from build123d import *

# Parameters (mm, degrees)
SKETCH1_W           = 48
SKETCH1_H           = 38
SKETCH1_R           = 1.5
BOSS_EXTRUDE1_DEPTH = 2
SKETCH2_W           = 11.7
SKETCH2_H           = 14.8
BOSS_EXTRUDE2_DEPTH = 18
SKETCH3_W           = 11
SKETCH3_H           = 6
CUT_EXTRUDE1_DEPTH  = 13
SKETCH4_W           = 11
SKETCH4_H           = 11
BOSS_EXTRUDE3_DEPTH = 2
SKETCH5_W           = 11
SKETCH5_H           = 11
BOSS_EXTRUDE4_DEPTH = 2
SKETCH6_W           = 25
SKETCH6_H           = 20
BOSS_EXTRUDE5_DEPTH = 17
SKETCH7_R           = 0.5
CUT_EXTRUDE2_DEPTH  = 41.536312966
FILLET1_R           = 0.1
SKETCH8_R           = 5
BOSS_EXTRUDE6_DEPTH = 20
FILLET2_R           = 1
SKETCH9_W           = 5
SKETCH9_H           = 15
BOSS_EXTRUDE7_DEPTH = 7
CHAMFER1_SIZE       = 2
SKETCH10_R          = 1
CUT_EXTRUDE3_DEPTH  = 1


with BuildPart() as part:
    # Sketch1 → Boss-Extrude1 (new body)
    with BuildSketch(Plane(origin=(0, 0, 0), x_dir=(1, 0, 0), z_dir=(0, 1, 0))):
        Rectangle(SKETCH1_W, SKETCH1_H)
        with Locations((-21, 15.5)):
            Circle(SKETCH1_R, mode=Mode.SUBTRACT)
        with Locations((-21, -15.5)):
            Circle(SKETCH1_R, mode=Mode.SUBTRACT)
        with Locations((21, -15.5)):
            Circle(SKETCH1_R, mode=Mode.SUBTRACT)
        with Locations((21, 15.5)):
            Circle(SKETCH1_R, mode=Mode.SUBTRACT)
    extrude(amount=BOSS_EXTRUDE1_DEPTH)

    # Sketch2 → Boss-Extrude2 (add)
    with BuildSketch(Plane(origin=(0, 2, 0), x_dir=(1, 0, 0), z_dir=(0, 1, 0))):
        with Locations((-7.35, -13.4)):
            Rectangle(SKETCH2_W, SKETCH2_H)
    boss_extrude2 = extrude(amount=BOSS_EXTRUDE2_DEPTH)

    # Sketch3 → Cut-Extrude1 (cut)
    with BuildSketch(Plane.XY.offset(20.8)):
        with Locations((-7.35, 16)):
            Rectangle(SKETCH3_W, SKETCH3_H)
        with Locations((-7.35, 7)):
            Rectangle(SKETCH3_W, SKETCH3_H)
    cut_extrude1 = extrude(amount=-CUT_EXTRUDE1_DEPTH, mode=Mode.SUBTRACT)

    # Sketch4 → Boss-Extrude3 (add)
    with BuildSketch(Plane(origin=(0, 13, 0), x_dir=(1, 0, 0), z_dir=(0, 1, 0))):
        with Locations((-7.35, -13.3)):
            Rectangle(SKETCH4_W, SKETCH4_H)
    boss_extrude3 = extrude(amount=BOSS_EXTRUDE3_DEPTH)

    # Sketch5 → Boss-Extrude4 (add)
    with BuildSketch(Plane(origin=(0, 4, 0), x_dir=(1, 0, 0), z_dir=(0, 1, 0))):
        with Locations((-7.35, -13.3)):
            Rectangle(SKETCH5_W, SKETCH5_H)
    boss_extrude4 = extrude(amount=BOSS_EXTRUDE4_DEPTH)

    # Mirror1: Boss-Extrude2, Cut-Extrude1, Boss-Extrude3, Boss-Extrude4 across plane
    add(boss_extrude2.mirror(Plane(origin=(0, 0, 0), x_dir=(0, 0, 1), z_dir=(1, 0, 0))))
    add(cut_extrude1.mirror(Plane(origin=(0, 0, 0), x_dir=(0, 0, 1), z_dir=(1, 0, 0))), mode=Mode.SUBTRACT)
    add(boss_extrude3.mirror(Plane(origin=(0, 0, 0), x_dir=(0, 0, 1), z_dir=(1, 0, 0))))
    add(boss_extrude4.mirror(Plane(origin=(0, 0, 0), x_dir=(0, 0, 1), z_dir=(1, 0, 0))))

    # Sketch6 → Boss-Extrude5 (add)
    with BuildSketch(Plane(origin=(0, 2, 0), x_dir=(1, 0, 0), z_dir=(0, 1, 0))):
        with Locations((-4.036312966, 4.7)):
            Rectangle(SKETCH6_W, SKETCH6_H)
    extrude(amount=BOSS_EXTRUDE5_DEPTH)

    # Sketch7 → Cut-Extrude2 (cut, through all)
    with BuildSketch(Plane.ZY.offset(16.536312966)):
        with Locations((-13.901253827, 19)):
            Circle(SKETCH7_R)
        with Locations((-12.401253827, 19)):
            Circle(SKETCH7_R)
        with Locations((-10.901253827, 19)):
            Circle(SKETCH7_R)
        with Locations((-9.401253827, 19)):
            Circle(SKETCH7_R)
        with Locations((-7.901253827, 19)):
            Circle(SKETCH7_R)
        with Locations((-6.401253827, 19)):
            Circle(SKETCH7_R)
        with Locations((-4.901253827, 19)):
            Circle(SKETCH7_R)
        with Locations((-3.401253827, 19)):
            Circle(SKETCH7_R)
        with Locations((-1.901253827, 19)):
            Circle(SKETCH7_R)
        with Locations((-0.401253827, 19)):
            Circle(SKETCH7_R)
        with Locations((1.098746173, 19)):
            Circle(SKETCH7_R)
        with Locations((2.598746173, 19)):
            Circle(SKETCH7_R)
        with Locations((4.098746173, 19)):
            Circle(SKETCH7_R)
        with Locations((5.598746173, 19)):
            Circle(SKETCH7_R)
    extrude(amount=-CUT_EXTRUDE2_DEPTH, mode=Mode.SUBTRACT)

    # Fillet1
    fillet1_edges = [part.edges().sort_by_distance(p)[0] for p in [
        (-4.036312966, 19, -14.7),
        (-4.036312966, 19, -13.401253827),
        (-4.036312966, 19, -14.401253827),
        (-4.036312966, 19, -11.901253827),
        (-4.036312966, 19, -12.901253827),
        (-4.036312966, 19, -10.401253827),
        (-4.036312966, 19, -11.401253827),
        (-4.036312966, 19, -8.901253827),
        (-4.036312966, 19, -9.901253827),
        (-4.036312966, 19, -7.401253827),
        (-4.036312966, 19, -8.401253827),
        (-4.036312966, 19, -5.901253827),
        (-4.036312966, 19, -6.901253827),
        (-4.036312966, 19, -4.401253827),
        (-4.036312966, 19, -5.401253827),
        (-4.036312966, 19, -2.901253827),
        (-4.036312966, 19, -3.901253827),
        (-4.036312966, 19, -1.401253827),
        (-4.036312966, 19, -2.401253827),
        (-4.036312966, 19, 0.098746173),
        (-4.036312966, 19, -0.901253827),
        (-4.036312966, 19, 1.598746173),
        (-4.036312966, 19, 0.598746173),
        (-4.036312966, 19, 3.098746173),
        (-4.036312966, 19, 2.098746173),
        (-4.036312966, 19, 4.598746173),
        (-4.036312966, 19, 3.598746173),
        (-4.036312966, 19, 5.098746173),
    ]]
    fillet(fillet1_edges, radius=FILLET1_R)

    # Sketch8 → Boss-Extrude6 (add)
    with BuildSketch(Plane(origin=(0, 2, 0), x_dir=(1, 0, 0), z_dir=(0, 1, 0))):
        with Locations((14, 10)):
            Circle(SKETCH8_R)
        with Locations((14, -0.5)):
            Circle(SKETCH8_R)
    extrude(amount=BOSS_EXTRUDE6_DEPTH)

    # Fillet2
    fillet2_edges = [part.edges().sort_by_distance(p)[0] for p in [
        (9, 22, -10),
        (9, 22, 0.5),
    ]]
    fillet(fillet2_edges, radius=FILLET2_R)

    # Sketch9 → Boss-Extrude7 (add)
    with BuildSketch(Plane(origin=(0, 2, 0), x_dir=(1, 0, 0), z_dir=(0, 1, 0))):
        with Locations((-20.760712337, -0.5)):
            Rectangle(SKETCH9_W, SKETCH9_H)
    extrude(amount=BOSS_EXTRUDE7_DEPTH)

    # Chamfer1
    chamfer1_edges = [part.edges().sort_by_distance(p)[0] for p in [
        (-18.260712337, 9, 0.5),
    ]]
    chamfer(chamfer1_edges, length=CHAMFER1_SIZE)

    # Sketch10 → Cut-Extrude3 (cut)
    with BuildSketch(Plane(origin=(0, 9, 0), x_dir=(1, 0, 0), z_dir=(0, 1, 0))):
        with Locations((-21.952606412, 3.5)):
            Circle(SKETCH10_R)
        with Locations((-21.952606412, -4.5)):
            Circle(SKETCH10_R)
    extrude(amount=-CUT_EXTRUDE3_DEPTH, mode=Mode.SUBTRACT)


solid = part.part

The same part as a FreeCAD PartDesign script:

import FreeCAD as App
import Part
import Sketcher
Q = App.Units.Quantity


def edges_at(feature, points):
    """Names of the edges that pass closest to the given points."""
    edges = feature.Shape.Edges
    near = lambda p: min(range(len(edges)), key=lambda i: edges[i].distToShape(Part.Vertex(*p))[0])
    return sorted({f"Edge{near(p) + 1}" for p in points})

doc = App.newDocument("Part")
params = doc.addObject("Spreadsheet::Sheet", "Params")
for row, (alias, value) in enumerate([
    ("sketch1_diameter", "3 mm"),
    ("sketch1_width", "48 mm"),
    ("sketch1_height", "38 mm"),
    ("pad1_length", "2 mm"),
    ("sketch2_width", "11.7 mm"),
    ("sketch2_height", "14.8 mm"),
    ("pad2_length", "18 mm"),
    ("sketch3_width", "11 mm"),
    ("sketch3_height", "6 mm"),
    ("pocket1_length", "13 mm"),
    ("sketch4_width", "11 mm"),
    ("pad3_length", "2 mm"),
    ("sketch5_width", "11 mm"),
    ("pad4_length", "2 mm"),
    ("sketch6_width", "25 mm"),
    ("sketch6_height", "20 mm"),
    ("pad5_length", "17 mm"),
    ("sketch7_diameter", "1 mm"),
    ("fillet_radius", "0.1 mm"),
    ("sketch8_diameter", "10 mm"),
    ("pad6_length", "20 mm"),
    ("fillet2_radius", "1 mm"),
    ("sketch9_width", "5 mm"),
    ("sketch9_height", "15 mm"),
    ("pad7_length", "7 mm"),
    ("chamfer_size", "2 mm"),
    ("sketch10_diameter", "2 mm"),
    ("pocket3_length", "1 mm"),
], start=1):
    params.set(f"A{row}", alias)
    params.set(f"B{row}", "=" + value)
    params.setAlias(f"B{row}", alias)

body = doc.addObject("PartDesign::Body", "Body")

sketch1 = body.newObject("Sketcher::SketchObject", "Sketch")
sketch1.AttachmentSupport = (doc.getObject("XZ_Plane"), [""])
sketch1.MapMode = "FlatFace"
sketch1.addGeometry([
    Part.LineSegment(App.Vector(-24, -19, 0), App.Vector(-24, 19, 0)),
    Part.LineSegment(App.Vector(-24, 19, 0), App.Vector(24, 19, 0)),
    Part.LineSegment(App.Vector(24, 19, 0), App.Vector(24, -19, 0)),
    Part.LineSegment(App.Vector(24, -19, 0), App.Vector(-24, -19, 0)),
    Part.Circle(App.Vector(-21, 15.5, 0), App.Vector(0, 0, 1), 1.5),
    Part.Circle(App.Vector(21, 15.5, 0), App.Vector(0, 0, 1), 1.5),
    Part.Circle(App.Vector(-21, -15.5, 0), App.Vector(0, 0, 1), 1.5),
    Part.Circle(App.Vector(21, -15.5, 0), App.Vector(0, 0, 1), 1.5),
], False)
sketch1.addConstraint([
    Sketcher.Constraint("Coincident", 0, 2, 1, 1),
    Sketcher.Constraint("Coincident", 1, 2, 2, 1),
    Sketcher.Constraint("Coincident", 2, 2, 3, 1),
    Sketcher.Constraint("Coincident", 3, 2, 0, 1),
    Sketcher.Constraint("Vertical", 0),
    Sketcher.Constraint("Horizontal", 1),
    Sketcher.Constraint("Vertical", 2),
    Sketcher.Constraint("Horizontal", 3),
    Sketcher.Constraint("Equal", 4, 5),
    Sketcher.Constraint("Equal", 5, 6),
    Sketcher.Constraint("Equal", 6, 7),
    Sketcher.Constraint("Symmetric", 5, 3, 6, 3, -1, 1),
    Sketcher.Constraint("Symmetric", 4, 3, 7, 3, -1, 1),
    Sketcher.Constraint("Symmetric", 0, 2, 2, 2, -1, 1),
    Sketcher.Constraint("Symmetric", 4, 3, 5, 3, -2),
    Sketcher.Constraint("Diameter", 4, Q("3 mm")),
    Sketcher.Constraint("DistanceX", 1, 1, 1, 2, Q("48 mm")),
    Sketcher.Constraint("DistanceY", 0, 1, 0, 2, Q("38 mm")),
    Sketcher.Constraint("DistanceX", 4, 3, -1, 1, Q("21 mm")),
    Sketcher.Constraint("DistanceY", 6, 3, 4, 3, Q("31 mm")),
])
sketch1.setExpression("Constraints[15]", "Params.sketch1_diameter")
sketch1.setExpression("Constraints[16]", "Params.sketch1_width")
sketch1.setExpression("Constraints[17]", "Params.sketch1_height")
pad1 = body.newObject("PartDesign::Pad", "Pad")
pad1.Profile = sketch1
pad1.setExpression("Length", "Params.pad1_length")
pad1.Reversed = True

sketch2 = body.newObject("Sketcher::SketchObject", "Sketch001")
sketch2.AttachmentSupport = (doc.getObject("XZ_Plane"), [""])
sketch2.MapMode = "FlatFace"
sketch2.AttachmentOffset = App.Placement(App.Vector(0, 0, -2), App.Rotation())
sketch2.addGeometry([
    Part.LineSegment(App.Vector(-13, 6, 0), App.Vector(-13, 21, 0)),
    Part.LineSegment(App.Vector(-13, 21, 0), App.Vector(-2, 21, 0)),
    Part.LineSegment(App.Vector(-2, 21, 0), App.Vector(-2, 6, 0)),
    Part.LineSegment(App.Vector(-2, 6, 0), App.Vector(-13, 6, 0)),
], False)
sketch2.addConstraint([
    Sketcher.Constraint("Coincident", 0, 2, 1, 1),
    Sketcher.Constraint("Coincident", 1, 2, 2, 1),
    Sketcher.Constraint("Coincident", 2, 2, 3, 1),
    Sketcher.Constraint("Coincident", 3, 2, 0, 1),
    Sketcher.Constraint("Vertical", 0),
    Sketcher.Constraint("Horizontal", 1),
    Sketcher.Constraint("Vertical", 2),
    Sketcher.Constraint("Horizontal", 3),
    Sketcher.Constraint("DistanceX", 1, 1, 1, 2, Q("11.7 mm")),
    Sketcher.Constraint("DistanceY", 0, 1, 0, 2, Q("14.8 mm")),
    Sketcher.Constraint("DistanceY", -1, 1, 2, 2, Q("6 mm")),
    Sketcher.Constraint("DistanceX", 0, 2, -1, 1, Q("13.2 mm")),
])
sketch2.setExpression("Constraints[8]", "Params.sketch2_width")
sketch2.setExpression("Constraints[9]", "Params.sketch2_height")
pad2 = body.newObject("PartDesign::Pad", "Pad001")
pad2.Profile = sketch2
pad2.setExpression("Length", "Params.pad2_length")
pad2.Reversed = True

sketch3 = body.newObject("Sketcher::SketchObject", "Sketch002")
sketch3.AttachmentSupport = (doc.getObject("XY_Plane"), [""])
sketch3.MapMode = "FlatFace"
sketch3.AttachmentOffset = App.Placement(App.Vector(0, 0, 20.8), App.Rotation())
sketch3.addGeometry([
    Part.LineSegment(App.Vector(-13, 19, 0), App.Vector(-13, 13, 0)),
    Part.LineSegment(App.Vector(-13, 13, 0), App.Vector(-2, 13, 0)),
    Part.LineSegment(App.Vector(-2, 13, 0), App.Vector(-2, 19, 0)),
    Part.LineSegment(App.Vector(-2, 19, 0), App.Vector(-13, 19, 0)),
    Part.LineSegment(App.Vector(-13, 10, 0), App.Vector(-13, 4, 0)),
    Part.LineSegment(App.Vector(-13, 4, 0), App.Vector(-2, 4, 0)),
    Part.LineSegment(App.Vector(-2, 4, 0), App.Vector(-2, 10, 0)),
    Part.LineSegment(App.Vector(-2, 10, 0), App.Vector(-13, 10, 0)),
], False)
sketch3.addConstraint([
    Sketcher.Constraint("Coincident", 0, 2, 1, 1),
    Sketcher.Constraint("Coincident", 1, 2, 2, 1),
    Sketcher.Constraint("Coincident", 2, 2, 3, 1),
    Sketcher.Constraint("Coincident", 3, 2, 0, 1),
    Sketcher.Constraint("Coincident", 4, 2, 5, 1),
    Sketcher.Constraint("Coincident", 5, 2, 6, 1),
    Sketcher.Constraint("Coincident", 6, 2, 7, 1),
    Sketcher.Constraint("Coincident", 7, 2, 4, 1),
    Sketcher.Constraint("Vertical", 0),
    Sketcher.Constraint("Horizontal", 1),
    Sketcher.Constraint("Vertical", 2),
    Sketcher.Constraint("Horizontal", 3),
    Sketcher.Constraint("Vertical", 4),
    Sketcher.Constraint("Horizontal", 5),
    Sketcher.Constraint("Vertical", 6),
    Sketcher.Constraint("Horizontal", 7),
    Sketcher.Constraint("Vertical", 3, 2, 4, 2),
    Sketcher.Constraint("Vertical", 2, 2, 5, 2),
    Sketcher.Constraint("Equal", 2, 4),
    Sketcher.Constraint("DistanceX", 1, 1, 1, 2, Q("11 mm")),
    Sketcher.Constraint("DistanceY", 0, 2, 0, 1, Q("6 mm")),
    Sketcher.Constraint("DistanceY", -1, 1, 0, 2, Q("13 mm")),
    Sketcher.Constraint("DistanceY", -1, 1, 4, 2, Q("4 mm")),
    Sketcher.Constraint("DistanceX", 0, 2, -1, 1, Q("12.85 mm")),
])
sketch3.setExpression("Constraints[19]", "Params.sketch3_width")
sketch3.setExpression("Constraints[20]", "Params.sketch3_height")
pocket1 = body.newObject("PartDesign::Pocket", "Pocket")
pocket1.Profile = sketch3
pocket1.setExpression("Length", "Params.pocket1_length")

sketch4 = body.newObject("Sketcher::SketchObject", "Sketch003")
sketch4.AttachmentSupport = (doc.getObject("XZ_Plane"), [""])
sketch4.MapMode = "FlatFace"
sketch4.AttachmentOffset = App.Placement(App.Vector(0, 0, -13), App.Rotation())
sketch4.addGeometry([
    Part.LineSegment(App.Vector(-13, 8, 0), App.Vector(-13, 19, 0)),
    Part.LineSegment(App.Vector(-13, 19, 0), App.Vector(-2, 19, 0)),
    Part.LineSegment(App.Vector(-2, 19, 0), App.Vector(-2, 8, 0)),
    Part.LineSegment(App.Vector(-2, 8, 0), App.Vector(-13, 8, 0)),
], False)
sketch4.addConstraint([
    Sketcher.Constraint("Coincident", 0, 2, 1, 1),
    Sketcher.Constraint("Coincident", 1, 2, 2, 1),
    Sketcher.Constraint("Coincident", 2, 2, 3, 1),
    Sketcher.Constraint("Coincident", 3, 2, 0, 1),
    Sketcher.Constraint("Vertical", 0),
    Sketcher.Constraint("Horizontal", 1),
    Sketcher.Constraint("Vertical", 2),
    Sketcher.Constraint("Horizontal", 3),
    Sketcher.Constraint("Equal", 3, 0),
    Sketcher.Constraint("DistanceX", 1, 1, 1, 2, Q("11 mm")),
    Sketcher.Constraint("DistanceY", -1, 1, 0, 2, Q("18.8 mm")),
    Sketcher.Constraint("DistanceX", 0, 2, -1, 1, Q("12.85 mm")),
])
sketch4.setExpression("Constraints[9]", "Params.sketch4_width")
pad3 = body.newObject("PartDesign::Pad", "Pad002")
pad3.Profile = sketch4
pad3.setExpression("Length", "Params.pad3_length")
pad3.Reversed = True

sketch5 = body.newObject("Sketcher::SketchObject", "Sketch004")
sketch5.AttachmentSupport = (doc.getObject("XZ_Plane"), [""])
sketch5.MapMode = "FlatFace"
sketch5.AttachmentOffset = App.Placement(App.Vector(0, 0, -4), App.Rotation())
sketch5.addGeometry([
    Part.LineSegment(App.Vector(-13, 8, 0), App.Vector(-13, 19, 0)),
    Part.LineSegment(App.Vector(-13, 19, 0), App.Vector(-2, 19, 0)),
    Part.LineSegment(App.Vector(-2, 19, 0), App.Vector(-2, 8, 0)),
    Part.LineSegment(App.Vector(-2, 8, 0), App.Vector(-13, 8, 0)),
], False)
sketch5.addConstraint([
    Sketcher.Constraint("Coincident", 0, 2, 1, 1),
    Sketcher.Constraint("Coincident", 1, 2, 2, 1),
    Sketcher.Constraint("Coincident", 2, 2, 3, 1),
    Sketcher.Constraint("Coincident", 3, 2, 0, 1),
    Sketcher.Constraint("Vertical", 0),
    Sketcher.Constraint("Horizontal", 1),
    Sketcher.Constraint("Vertical", 2),
    Sketcher.Constraint("Horizontal", 3),
    Sketcher.Constraint("Equal", 3, 0),
    Sketcher.Constraint("DistanceX", 1, 1, 1, 2, Q("11 mm")),
    Sketcher.Constraint("DistanceY", -1, 1, 0, 2, Q("18.8 mm")),
    Sketcher.Constraint("DistanceX", 0, 2, -1, 1, Q("12.85 mm")),
])
sketch5.setExpression("Constraints[9]", "Params.sketch5_width")
pad4 = body.newObject("PartDesign::Pad", "Pad003")
pad4.Profile = sketch5
pad4.setExpression("Length", "Params.pad4_length")
pad4.Reversed = True
doc.recompute()

mirrored = body.newObject("PartDesign::Mirrored", "Mirrored")
mirrored.Originals = [pad2, pocket1, pad3, pad4]
mirrored.MirrorPlane = (doc.getObject("YZ_Plane"), [""])
body.Tip = mirrored

sketch6 = body.newObject("Sketcher::SketchObject", "Sketch005")
sketch6.AttachmentSupport = (doc.getObject("XZ_Plane"), [""])
sketch6.MapMode = "FlatFace"
sketch6.AttachmentOffset = App.Placement(App.Vector(0, 0, -2), App.Rotation())
sketch6.addGeometry([
    Part.LineSegment(App.Vector(-17, -15, 0), App.Vector(-17, 5, 0)),
    Part.LineSegment(App.Vector(-17, 5, 0), App.Vector(8, 5, 0)),
    Part.LineSegment(App.Vector(8, 5, 0), App.Vector(8, -15, 0)),
    Part.LineSegment(App.Vector(8, -15, 0), App.Vector(-17, -15, 0)),
], False)
sketch6.addConstraint([
    Sketcher.Constraint("Coincident", 0, 2, 1, 1),
    Sketcher.Constraint("Coincident", 1, 2, 2, 1),
    Sketcher.Constraint("Coincident", 2, 2, 3, 1),
    Sketcher.Constraint("Coincident", 3, 2, 0, 1),
    Sketcher.Constraint("Vertical", 0),
    Sketcher.Constraint("Horizontal", 1),
    Sketcher.Constraint("Vertical", 2),
    Sketcher.Constraint("Horizontal", 3),
    Sketcher.Constraint("DistanceX", 1, 1, 1, 2, Q("25 mm")),
    Sketcher.Constraint("DistanceY", 0, 1, 0, 2, Q("20 mm")),
    Sketcher.Constraint("DistanceY", -1, 1, 0, 2, Q("5.3 mm")),
    Sketcher.Constraint("DistanceX", 0, 2, -1, 1, Q("16.536313 mm")),
])
sketch6.setExpression("Constraints[8]", "Params.sketch6_width")
sketch6.setExpression("Constraints[9]", "Params.sketch6_height")
pad5 = body.newObject("PartDesign::Pad", "Pad004")
pad5.Profile = sketch6
pad5.setExpression("Length", "Params.pad5_length")
pad5.Reversed = True

sketch7 = body.newObject("Sketcher::SketchObject", "Sketch006")
sketch7.AttachmentSupport = (doc.getObject("YZ_Plane"), [""])
sketch7.MapMode = "FlatFace"
sketch7.AttachmentOffset = App.Placement(App.Vector(0, 0, -16.536313), App.Rotation())
sketch7.addGeometry([
    Part.Circle(App.Vector(19, -13.9, 0), App.Vector(0, 0, 1), 0.5),
    Part.Circle(App.Vector(19, -12.4, 0), App.Vector(0, 0, 1), 0.5),
    Part.Circle(App.Vector(19, -10.9, 0), App.Vector(0, 0, 1), 0.5),
    Part.Circle(App.Vector(19, -9.4, 0), App.Vector(0, 0, 1), 0.5),
    Part.Circle(App.Vector(19, -7.9, 0), App.Vector(0, 0, 1), 0.5),
    Part.Circle(App.Vector(19, -6.4, 0), App.Vector(0, 0, 1), 0.5),
    Part.Circle(App.Vector(19, -4.9, 0), App.Vector(0, 0, 1), 0.5),
    Part.Circle(App.Vector(19, -3.4, 0), App.Vector(0, 0, 1), 0.5),
    Part.Circle(App.Vector(19, -1.9, 0), App.Vector(0, 0, 1), 0.5),
    Part.Circle(App.Vector(19, -0.4, 0), App.Vector(0, 0, 1), 0.5),
    Part.Circle(App.Vector(19, 1.1, 0), App.Vector(0, 0, 1), 0.5),
    Part.Circle(App.Vector(19, 2.6, 0), App.Vector(0, 0, 1), 0.5),
    Part.Circle(App.Vector(19, 4.1, 0), App.Vector(0, 0, 1), 0.5),
    Part.Circle(App.Vector(19, 5.6, 0), App.Vector(0, 0, 1), 0.5),
], False)
sketch7.addConstraint([
    Sketcher.Constraint("Equal", 0, 1),
    Sketcher.Constraint("Equal", 1, 2),
    Sketcher.Constraint("Equal", 2, 3),
    Sketcher.Constraint("Equal", 3, 4),
    Sketcher.Constraint("Equal", 4, 5),
    Sketcher.Constraint("Equal", 5, 6),
    Sketcher.Constraint("Equal", 6, 7),
    Sketcher.Constraint("Equal", 7, 8),
    Sketcher.Constraint("Equal", 8, 9),
    Sketcher.Constraint("Equal", 9, 10),
    Sketcher.Constraint("Equal", 10, 11),
    Sketcher.Constraint("Equal", 11, 12),
    Sketcher.Constraint("Equal", 12, 13),
    Sketcher.Constraint("Vertical", 0, 3, 1, 3),
    Sketcher.Constraint("Vertical", 1, 3, 2, 3),
    Sketcher.Constraint("Vertical", 2, 3, 3, 3),
    Sketcher.Constraint("Vertical", 3, 3, 4, 3),
    Sketcher.Constraint("Vertical", 4, 3, 5, 3),
    Sketcher.Constraint("Vertical", 5, 3, 6, 3),
    Sketcher.Constraint("Vertical", 6, 3, 7, 3),
    Sketcher.Constraint("Vertical", 7, 3, 8, 3),
    Sketcher.Constraint("Vertical", 8, 3, 9, 3),
    Sketcher.Constraint("Vertical", 9, 3, 10, 3),
    Sketcher.Constraint("Vertical", 10, 3, 11, 3),
    Sketcher.Constraint("Vertical", 11, 3, 12, 3),
    Sketcher.Constraint("Vertical", 12, 3, 13, 3),
    Sketcher.Constraint("Diameter", 0, Q("1 mm")),
    Sketcher.Constraint("DistanceX", -1, 1, 0, 3, Q("19 mm")),
    Sketcher.Constraint("DistanceY", 0, 3, 2, 3, Q("3 mm")),
    Sketcher.Constraint("DistanceY", 1, 3, 3, 3, Q("3 mm")),
    Sketcher.Constraint("DistanceY", 2, 3, 4, 3, Q("3 mm")),
    Sketcher.Constraint("DistanceY", 3, 3, 5, 3, Q("3 mm")),
    Sketcher.Constraint("DistanceY", 4, 3, 6, 3, Q("3 mm")),
    Sketcher.Constraint("DistanceY", 5, 3, 7, 3, Q("3 mm")),
    Sketcher.Constraint("DistanceY", 6, 3, 8, 3, Q("3 mm")),
    Sketcher.Constraint("DistanceY", 7, 3, 9, 3, Q("3 mm")),
    Sketcher.Constraint("DistanceY", 8, 3, 10, 3, Q("3 mm")),
    Sketcher.Constraint("DistanceY", 9, 3, 11, 3, Q("3 mm")),
    Sketcher.Constraint("DistanceY", 10, 3, 12, 3, Q("3 mm")),
    Sketcher.Constraint("DistanceY", 11, 3, 13, 3, Q("3 mm")),
    Sketcher.Constraint("DistanceY", 0, 3, 1, 3, Q("1.5 mm")),
    Sketcher.Constraint("DistanceY", 0, 3, -1, 1, Q("13.901254 mm")),
])
sketch7.setExpression("Constraints[26]", "Params.sketch7_diameter")
pocket2 = body.newObject("PartDesign::Pocket", "Pocket001")
pocket2.Profile = sketch7
pocket2.Type = "ThroughAll"
pocket2.Reversed = True
doc.recompute()

fillet = body.newObject("PartDesign::Fillet", "Fillet")
fillet.Base = (pocket2, edges_at(pocket2, [
    (-4.036, 19, -14.7),
    (-4.036, 19, -13.401),
    (-4.036, 19, -14.401),
    (-4.036, 19, -11.901),
    (-4.036, 19, -12.901),
    (-4.036, 19, -10.401),
    (-4.036, 19, -11.401),
    (-4.036, 19, -8.901),
    (-4.036, 19, -9.901),
    (-4.036, 19, -7.401),
    (-4.036, 19, -8.401),
    (-4.036, 19, -5.901),
    (-4.036, 19, -6.901),
    (-4.036, 19, -4.401),
    (-4.036, 19, -5.401),
    (-4.036, 19, -2.901),
    (-4.036, 19, -3.901),
    (-4.036, 19, -1.401),
    (-4.036, 19, -2.401),
    (-4.036, 19, 0.099),
    (-4.036, 19, -0.901),
    (-4.036, 19, 1.599),
    (-4.036, 19, 0.599),
    (-4.036, 19, 3.099),
    (-4.036, 19, 2.099),
    (-4.036, 19, 4.599),
    (-4.036, 19, 3.599),
    (-4.036, 19, 5.099),
]))
fillet.setExpression("Radius", "Params.fillet_radius")

sketch8 = body.newObject("Sketcher::SketchObject", "Sketch007")
sketch8.AttachmentSupport = (doc.getObject("XZ_Plane"), [""])
sketch8.MapMode = "FlatFace"
sketch8.AttachmentOffset = App.Placement(App.Vector(0, 0, -2), App.Rotation())
sketch8.addGeometry([
    Part.Circle(App.Vector(14, -10, 0), App.Vector(0, 0, 1), 5),
    Part.Circle(App.Vector(14, 0, 0), App.Vector(0, 0, 1), 5),
], False)
sketch8.addConstraint([
    Sketcher.Constraint("Equal", 0, 1),
    Sketcher.Constraint("Vertical", 0, 3, 1, 3),
    Sketcher.Constraint("Diameter", 0, Q("10 mm")),
    Sketcher.Constraint("DistanceX", -1, 1, 0, 3, Q("14 mm")),
    Sketcher.Constraint("DistanceY", 0, 3, -1, 1, Q("10 mm")),
    Sketcher.Constraint("DistanceY", -1, 1, 1, 3, Q("0.5 mm")),
])
sketch8.setExpression("Constraints[2]", "Params.sketch8_diameter")
pad6 = body.newObject("PartDesign::Pad", "Pad005")
pad6.Profile = sketch8
pad6.setExpression("Length", "Params.pad6_length")
pad6.Reversed = True
doc.recompute()

fillet2 = body.newObject("PartDesign::Fillet", "Fillet001")
fillet2.Base = (pad6, edges_at(pad6, [(9, 22, -10), (9, 22, 0.5)]))
fillet2.setExpression("Radius", "Params.fillet2_radius")

sketch9 = body.newObject("Sketcher::SketchObject", "Sketch008")
sketch9.AttachmentSupport = (doc.getObject("XZ_Plane"), [""])
sketch9.MapMode = "FlatFace"
sketch9.AttachmentOffset = App.Placement(App.Vector(0, 0, -2), App.Rotation())
sketch9.addGeometry([
    Part.LineSegment(App.Vector(-23, -7, 0), App.Vector(-23, 8, 0)),
    Part.LineSegment(App.Vector(-23, 8, 0), App.Vector(-18, 8, 0)),
    Part.LineSegment(App.Vector(-18, 8, 0), App.Vector(-18, -7, 0)),
    Part.LineSegment(App.Vector(-18, -7, 0), App.Vector(-23, -7, 0)),
], False)
sketch9.addConstraint([
    Sketcher.Constraint("Coincident", 0, 2, 1, 1),
    Sketcher.Constraint("Coincident", 1, 2, 2, 1),
    Sketcher.Constraint("Coincident", 2, 2, 3, 1),
    Sketcher.Constraint("Coincident", 3, 2, 0, 1),
    Sketcher.Constraint("Vertical", 0),
    Sketcher.Constraint("Horizontal", 1),
    Sketcher.Constraint("Vertical", 2),
    Sketcher.Constraint("Horizontal", 3),
    Sketcher.Constraint("DistanceX", 1, 1, 1, 2, Q("5 mm")),
    Sketcher.Constraint("DistanceY", 0, 1, 0, 2, Q("15 mm")),
    Sketcher.Constraint("DistanceY", -1, 1, 0, 2, Q("8 mm")),
    Sketcher.Constraint("DistanceX", 0, 2, -1, 1, Q("23.260712 mm")),
])
sketch9.setExpression("Constraints[8]", "Params.sketch9_width")
sketch9.setExpression("Constraints[9]", "Params.sketch9_height")
pad7 = body.newObject("PartDesign::Pad", "Pad006")
pad7.Profile = sketch9
pad7.setExpression("Length", "Params.pad7_length")
pad7.Reversed = True
doc.recompute()

chamfer = body.newObject("PartDesign::Chamfer", "Chamfer")
chamfer.Base = (pad7, edges_at(pad7, [(-18.261, 9, 0.5)]))
chamfer.setExpression("Size", "Params.chamfer_size")

sketch10 = body.newObject("Sketcher::SketchObject", "Sketch009")
sketch10.AttachmentSupport = (doc.getObject("XZ_Plane"), [""])
sketch10.MapMode = "FlatFace"
sketch10.AttachmentOffset = App.Placement(App.Vector(0, 0, -9), App.Rotation())
sketch10.addGeometry([
    Part.Circle(App.Vector(-22, -3.5, 0), App.Vector(0, 0, 1), 1),
    Part.Circle(App.Vector(-22, 4.5, 0), App.Vector(0, 0, 1), 1),
], False)
sketch10.addConstraint([
    Sketcher.Constraint("Equal", 0, 1),
    Sketcher.Constraint("Vertical", 0, 3, 1, 3),
    Sketcher.Constraint("Diameter", 0, Q("2 mm")),
    Sketcher.Constraint("DistanceY", 0, 3, 1, 3, Q("8 mm")),
    Sketcher.Constraint("DistanceY", 0, 3, -1, 1, Q("3.5 mm")),
    Sketcher.Constraint("DistanceX", 0, 3, -1, 1, Q("21.952606 mm")),
])
sketch10.setExpression("Constraints[2]", "Params.sketch10_diameter")
pocket3 = body.newObject("PartDesign::Pocket", "Pocket002")
pocket3.Profile = sketch10
pocket3.setExpression("Length", "Params.pocket3_length")
pocket3.Reversed = True

doc.recompute()
